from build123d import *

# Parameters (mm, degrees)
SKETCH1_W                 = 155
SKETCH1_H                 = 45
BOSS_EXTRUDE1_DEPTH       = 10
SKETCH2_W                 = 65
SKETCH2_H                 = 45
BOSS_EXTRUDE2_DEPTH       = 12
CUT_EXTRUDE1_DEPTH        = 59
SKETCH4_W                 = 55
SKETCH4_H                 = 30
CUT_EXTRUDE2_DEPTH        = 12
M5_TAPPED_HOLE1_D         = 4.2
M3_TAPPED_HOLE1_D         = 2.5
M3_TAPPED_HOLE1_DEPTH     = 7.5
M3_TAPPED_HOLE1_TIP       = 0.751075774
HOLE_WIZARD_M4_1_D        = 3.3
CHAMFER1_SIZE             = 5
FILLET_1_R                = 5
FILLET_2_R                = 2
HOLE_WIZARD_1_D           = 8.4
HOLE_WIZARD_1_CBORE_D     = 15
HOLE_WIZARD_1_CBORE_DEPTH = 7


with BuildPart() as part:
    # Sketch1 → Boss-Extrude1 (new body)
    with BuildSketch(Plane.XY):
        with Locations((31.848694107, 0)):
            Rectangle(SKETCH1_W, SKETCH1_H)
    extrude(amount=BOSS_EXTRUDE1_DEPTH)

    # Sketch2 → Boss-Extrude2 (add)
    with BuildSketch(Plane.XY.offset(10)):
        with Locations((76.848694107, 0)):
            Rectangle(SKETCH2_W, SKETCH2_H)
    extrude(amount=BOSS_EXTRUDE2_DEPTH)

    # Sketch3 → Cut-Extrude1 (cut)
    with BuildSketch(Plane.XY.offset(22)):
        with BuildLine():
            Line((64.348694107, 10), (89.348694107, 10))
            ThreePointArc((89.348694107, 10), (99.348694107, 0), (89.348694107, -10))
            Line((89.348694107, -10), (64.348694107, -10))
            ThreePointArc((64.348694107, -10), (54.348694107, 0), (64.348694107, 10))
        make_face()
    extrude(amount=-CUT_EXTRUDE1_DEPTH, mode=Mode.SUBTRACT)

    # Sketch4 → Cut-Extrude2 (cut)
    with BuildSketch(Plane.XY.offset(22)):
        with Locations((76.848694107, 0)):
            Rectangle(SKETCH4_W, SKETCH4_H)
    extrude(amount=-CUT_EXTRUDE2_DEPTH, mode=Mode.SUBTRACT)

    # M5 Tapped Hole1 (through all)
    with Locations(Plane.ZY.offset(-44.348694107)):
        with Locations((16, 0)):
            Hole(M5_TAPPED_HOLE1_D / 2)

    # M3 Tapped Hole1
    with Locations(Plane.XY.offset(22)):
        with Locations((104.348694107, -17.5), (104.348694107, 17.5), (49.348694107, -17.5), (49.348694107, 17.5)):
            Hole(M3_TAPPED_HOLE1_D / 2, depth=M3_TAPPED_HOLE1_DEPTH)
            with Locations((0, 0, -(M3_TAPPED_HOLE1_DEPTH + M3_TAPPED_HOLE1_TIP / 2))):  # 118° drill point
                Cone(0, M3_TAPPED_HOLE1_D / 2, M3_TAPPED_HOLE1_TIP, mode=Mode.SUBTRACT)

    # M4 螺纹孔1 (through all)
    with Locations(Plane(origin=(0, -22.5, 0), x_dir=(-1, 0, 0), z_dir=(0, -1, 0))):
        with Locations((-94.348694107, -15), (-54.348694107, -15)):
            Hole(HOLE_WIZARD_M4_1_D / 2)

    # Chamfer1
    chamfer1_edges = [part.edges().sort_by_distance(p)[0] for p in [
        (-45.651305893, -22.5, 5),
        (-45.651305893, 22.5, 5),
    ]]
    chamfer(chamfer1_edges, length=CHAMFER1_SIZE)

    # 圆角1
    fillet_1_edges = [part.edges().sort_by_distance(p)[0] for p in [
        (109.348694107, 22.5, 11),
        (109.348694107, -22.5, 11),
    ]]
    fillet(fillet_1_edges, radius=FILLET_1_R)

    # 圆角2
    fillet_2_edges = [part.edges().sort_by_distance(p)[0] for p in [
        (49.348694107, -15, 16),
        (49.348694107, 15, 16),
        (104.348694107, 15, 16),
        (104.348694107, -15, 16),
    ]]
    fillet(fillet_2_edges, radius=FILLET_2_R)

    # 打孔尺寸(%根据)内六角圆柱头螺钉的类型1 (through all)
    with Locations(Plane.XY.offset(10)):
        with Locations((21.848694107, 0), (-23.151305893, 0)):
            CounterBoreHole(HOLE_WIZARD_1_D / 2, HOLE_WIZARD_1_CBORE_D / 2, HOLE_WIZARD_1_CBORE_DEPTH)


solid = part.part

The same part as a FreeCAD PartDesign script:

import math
import FreeCAD as App
import Part
import Sketcher
from FreeCAD import Vector


def edges_at(feature, points):
    """Names of the edges that pass closest to the given points."""
    edges = feature.Shape.Edges
    near = lambda p: min(range(len(edges)), key=lambda i: edges[i].distToShape(Part.Vertex(*p))[0])
    return sorted({f"Edge{near(p) + 1}" for p in points})

doc = App.newDocument("Part")
body = doc.addObject("PartDesign::Body", "Body")

sketch1 = body.newObject("Sketcher::SketchObject", "Sketch")
sketch1.AttachmentSupport = (doc.getObject("XY_Plane"), [""])
sketch1.MapMode = "FlatFace"
sketch1.addGeometry(Part.LineSegment(Vector(-45.651306, 22.5, 0), Vector(-45.651306, -22.5, 0)), False)
sketch1.addGeometry(Part.LineSegment(Vector(-45.651306, -22.5, 0), Vector(109.348694, -22.5, 0)), False)
sketch1.addGeometry(Part.LineSegment(Vector(109.348694, -22.5, 0), Vector(109.348694, 22.5, 0)), False)
sketch1.addGeometry(Part.LineSegment(Vector(109.348694, 22.5, 0), Vector(-45.651306, 22.5, 0)), False)
sketch1.addConstraint(Sketcher.Constraint("Coincident", 0, 2, 1, 1))
sketch1.addConstraint(Sketcher.Constraint("Coincident", 1, 2, 2, 1))
sketch1.addConstraint(Sketcher.Constraint("Coincident", 2, 2, 3, 1))
sketch1.addConstraint(Sketcher.Constraint("Coincident", 3, 2, 0, 1))
sketch1.addConstraint(Sketcher.Constraint("Vertical", 0))
sketch1.addConstraint(Sketcher.Constraint("Horizontal", 1))
sketch1.addConstraint(Sketcher.Constraint("Vertical", 2))
sketch1.addConstraint(Sketcher.Constraint("Horizontal", 3))
sketch1.addConstraint(Sketcher.Constraint("DistanceX", 1, 1, 1, 2, 155.0))
sketch1.addConstraint(Sketcher.Constraint("DistanceY", 0, 2, 0, 1, 45.0))
sketch1.addConstraint(Sketcher.Constraint("DistanceY", 0, 2, -1, 1, 22.5))
sketch1.addConstraint(Sketcher.Constraint("DistanceX", 0, 2, -1, 1, 45.651306))
pad1 = body.newObject("PartDesign::Pad", "Pad")
pad1.Profile = sketch1
pad1.Length = 10

sketch2 = body.newObject("Sketcher::SketchObject", "Sketch001")
sketch2.AttachmentSupport = (doc.getObject("XY_Plane"), [""])
sketch2.MapMode = "FlatFace"
sketch2.AttachmentOffset = App.Placement(Vector(0, 0, 10), App.Rotation())
sketch2.addGeometry(Part.LineSegment(Vector(44.348694, 22.5, 0), Vector(44.348694, -22.5, 0)), False)
sketch2.addGeometry(Part.LineSegment(Vector(44.348694, -22.5, 0), Vector(109.348694, -22.5, 0)), False)
sketch2.addGeometry(Part.LineSegment(Vector(109.348694, -22.5, 0), Vector(109.348694, 22.5, 0)), False)
sketch2.addGeometry(Part.LineSegment(Vector(109.348694, 22.5, 0), Vector(44.348694, 22.5, 0)), False)
sketch2.addConstraint(Sketcher.Constraint("Coincident", 0, 2, 1, 1))
sketch2.addConstraint(Sketcher.Constraint("Coincident", 1, 2, 2, 1))
sketch2.addConstraint(Sketcher.Constraint("Coincident", 2, 2, 3, 1))
sketch2.addConstraint(Sketcher.Constraint("Coincident", 3, 2, 0, 1))
sketch2.addConstraint(Sketcher.Constraint("Vertical", 0))
sketch2.addConstraint(Sketcher.Constraint("Horizontal", 1))
sketch2.addConstraint(Sketcher.Constraint("Vertical", 2))
sketch2.addConstraint(Sketcher.Constraint("Horizontal", 3))
sketch2.addConstraint(Sketcher.Constraint("DistanceX", 1, 1, 1, 2, 65.0))
sketch2.addConstraint(Sketcher.Constraint("DistanceY", 0, 2, 0, 1, 45.0))
sketch2.addConstraint(Sketcher.Constraint("DistanceY", 0, 2, -1, 1, 22.5))
sketch2.addConstraint(Sketcher.Constraint("DistanceX", -1, 1, 0, 2, 44.348694))
pad2 = body.newObject("PartDesign::Pad", "Pad001")
pad2.Profile = sketch2
pad2.Length = 12

sketch3 = body.newObject("Sketcher::SketchObject", "Sketch002")
sketch3.AttachmentSupport = (doc.getObject("XY_Plane"), [""])
sketch3.MapMode = "FlatFace"
sketch3.AttachmentOffset = App.Placement(Vector(0, 0, 22), App.Rotation())
sketch3.addGeometry(Part.LineSegment(Vector(89.348694, 10, 0), Vector(64.348694, 10, 0)), False)
sketch3.addGeometry(Part.ArcOfCircle(Part.Circle(Vector(64.348694, 0, 0), Vector(0, 0, 1), 10), math.radians(90), math.radians(270)), False)
sketch3.addGeometry(Part.LineSegment(Vector(64.348694, -10, 0), Vector(89.348694, -10, 0)), False)
sketch3.addGeometry(Part.ArcOfCircle(Part.Circle(Vector(89.348694, 0, 0), Vector(0, 0, 1), 10), math.radians(-90), math.radians(90)), False)
sketch3.addConstraint(Sketcher.Constraint("Tangent", 0, 2, 1, 1))
sketch3.addConstraint(Sketcher.Constraint("Tangent", 1, 2, 2, 1))
sketch3.addConstraint(Sketcher.Constraint("Tangent", 2, 2, 3, 1))
sketch3.addConstraint(Sketcher.Constraint("Tangent", 3, 2, 0, 1))
sketch3.addConstraint(Sketcher.Constraint("Horizontal", 0))
sketch3.addConstraint(Sketcher.Constraint("Horizontal", 2))
sketch3.addConstraint(Sketcher.Constraint("PointOnObject", 1, 3, -1))
sketch3.addConstraint(Sketcher.Constraint("Radius", 1, 10.0))
sketch3.addConstraint(Sketcher.Constraint("DistanceX", 0, 2, 0, 1, 25.0))
sketch3.addConstraint(Sketcher.Constraint("DistanceX", -1, 1, 1, 3, 64.348694))
pocket1 = body.newObject("PartDesign::Pocket", "Pocket")
pocket1.Profile = sketch3
pocket1.Length = 59

sketch4 = body.newObject("Sketcher::SketchObject", "Sketch003")
sketch4.AttachmentSupport = (doc.getObject("XY_Plane"), [""])
sketch4.MapMode = "FlatFace"
sketch4.AttachmentOffset = App.Placement(Vector(0, 0, 22), App.Rotation())
sketch4.addGeometry(Part.LineSegment(Vector(49.348694, 15, 0), Vector(49.348694, -15, 0)), False)
sketch4.addGeometry(Part.LineSegment(Vector(49.348694, -15, 0), Vector(104.348694, -15, 0)), False)
sketch4.addGeometry(Part.LineSegment(Vector(104.348694, -15, 0), Vector(104.348694, 15, 0)), False)
sketch4.addGeometry(Part.LineSegment(Vector(104.348694, 15, 0), Vector(49.348694, 15, 0)), False)
sketch4.addConstraint(Sketcher.Constraint("Coincident", 0, 2, 1, 1))
sketch4.addConstraint(Sketcher.Constraint("Coincident", 1, 2, 2, 1))
sketch4.addConstraint(Sketcher.Constraint("Coincident", 2, 2, 3, 1))
sketch4.addConstraint(Sketcher.Constraint("Coincident", 3, 2, 0, 1))
sketch4.addConstraint(Sketcher.Constraint("Vertical", 0))
sketch4.addConstraint(Sketcher.Constraint("Horizontal", 1))
sketch4.addConstraint(Sketcher.Constraint("Vertical", 2))
sketch4.addConstraint(Sketcher.Constraint("Horizontal", 3))
sketch4.addConstraint(Sketcher.Constraint("DistanceX", 1, 1, 1, 2, 55.0))
sketch4.addConstraint(Sketcher.Constraint("DistanceY", 0, 2, 0, 1, 30.0))
sketch4.addConstraint(Sketcher.Constraint("DistanceY", 0, 2, -1, 1, 15.0))
sketch4.addConstraint(Sketcher.Constraint("DistanceX", -1, 1, 0, 2, 49.348694))
pocket2 = body.newObject("PartDesign::Pocket", "Pocket001")
pocket2.Profile = sketch4
pocket2.Length = 12

sketch5 = body.newObject("Sketcher::SketchObject", "Sketch004")
sketch5.AttachmentSupport = (doc.getObject("YZ_Plane"), [""])
sketch5.MapMode = "FlatFace"
sketch5.AttachmentOffset = App.Placement(Vector(0, 0, 44.348694), App.Rotation())
sketch5.addGeometry(Part.Circle(Vector(0, 16, 0), Vector(0, 0, 1), 2.1), False)
sketch5.addConstraint(Sketcher.Constraint("PointOnObject", 0, 3, -2))
sketch5.addConstraint(Sketcher.Constraint("Diameter", 0, 4.2))
sketch5.addConstraint(Sketcher.Constraint("DistanceY", -1, 1, 0, 3, 16.0))
doc.recompute()
hole = body.newObject("PartDesign::Hole", "Hole")
hole.Profile = sketch5
hole.ThreadType = "None"
hole.Diameter = 4.2
hole.DepthType = "ThroughAll"
hole.Reversed = True

sketch6 = body.newObject("Sketcher::SketchObject", "Sketch005")
sketch6.AttachmentSupport = (doc.getObject("XY_Plane"), [""])
sketch6.MapMode = "FlatFace"
sketch6.AttachmentOffset = App.Placement(Vector(0, 0, 22), App.Rotation())
sketch6.addGeometry(Part.Circle(Vector(104.348694, -17.5, 0), Vector(0, 0, 1), 1.25), False)
sketch6.addGeometry(Part.Circle(Vector(104.348694, 17.5, 0), Vector(0, 0, 1), 1.25), False)
sketch6.addGeometry(Part.Circle(Vector(49.348694, -17.5, 0), Vector(0, 0, 1), 1.25), False)
sketch6.addGeometry(Part.Circle(Vector(49.348694, 17.5, 0), Vector(0, 0, 1), 1.25), False)
sketch6.addConstraint(Sketcher.Constraint("Equal", 0, 1))
sketch6.addConstraint(Sketcher.Constraint("Equal", 1, 2))
sketch6.addConstraint(Sketcher.Constraint("Equal", 2, 3))
sketch6.addConstraint(Sketcher.Constraint("Symmetric", 0, 3, 1, 3, -1))
sketch6.addConstraint(Sketcher.Constraint("Symmetric", 2, 3, 3, 3, -1))
sketch6.addConstraint(Sketcher.Constraint("Horizontal", 0, 3, 2, 3))
sketch6.addConstraint(Sketcher.Constraint("Diameter", 0, 2.5))
sketch6.addConstraint(Sketcher.Constraint("DistanceY", 0, 3, 1, 3, 35.0))
sketch6.addConstraint(Sketcher.Constraint("DistanceX", 2, 3, 0, 3, 55.0))
sketch6.addConstraint(Sketcher.Constraint("DistanceX", -1, 1, 0, 3, 104.348694))
doc.recompute()
hole2 = body.newObject("PartDesign::Hole", "Hole001")
hole2.Profile = sketch6
hole2.ThreadType = "None"
hole2.Diameter = 2.5
hole2.DepthType = "Dimension"
hole2.Depth = 7.5
hole2.DrillPoint = "Angled"
hole2.DrillPointAngle = 118

sketch7 = body.newObject("Sketcher::SketchObject", "Sketch006")
sketch7.AttachmentSupport = (doc.getObject("XZ_Plane"), [""])
sketch7.MapMode = "FlatFace"
sketch7.AttachmentOffset = App.Placement(Vector(0, 0, 22.5), App.Rotation())
sketch7.addGeometry(Part.Circle(Vector(94.348694, 15, 0), Vector(0, 0, 1), 1.65), False)
sketch7.addGeometry(Part.Circle(Vector(54.348694, 15, 0), Vector(0, 0, 1), 1.65), False)
sketch7.addConstraint(Sketcher.Constraint("Equal", 0, 1))
sketch7.addConstraint(Sketcher.Constraint("Horizontal", 0, 3, 1, 3))
sketch7.addConstraint(Sketcher.Constraint("Diameter", 0, 3.3))
sketch7.addConstraint(Sketcher.Constraint("DistanceY", -1, 1, 0, 3, 15.0))
sketch7.addConstraint(Sketcher.Constraint("DistanceX", 1, 3, 0, 3, 40.0))
sketch7.addConstraint(Sketcher.Constraint("DistanceX", -1, 1, 0, 3, 94.348694))
doc.recompute()
hole3 = body.newObject("PartDesign::Hole", "Hole002")
hole3.Profile = sketch7
hole3.ThreadType = "None"
hole3.Diameter = 3.3
hole3.DepthType = "ThroughAll"
doc.recompute()

chamfer = body.newObject("PartDesign::Chamfer", "Chamfer")
chamfer.Base = (hole3, edges_at(hole3, [(-45.651, -22.5, 5), (-45.651, 22.5, 5)]))
chamfer.Size = 5
doc.recompute()

fillet = body.newObject("PartDesign::Fillet", "Fillet")
fillet.Base = (chamfer, edges_at(chamfer, [(109.349, 22.5, 11), (109.349, -22.5, 11)]))
fillet.Radius = 5
doc.recompute()

fillet2 = body.newObject("PartDesign::Fillet", "Fillet001")
fillet2.Base = (fillet, edges_at(fillet, [
    (49.349, -15, 16),
    (49.349, 15, 16),
    (104.349, 15, 16),
    (104.349, -15, 16),
]))
fillet2.Radius = 2

sketch8 = body.newObject("Sketcher::SketchObject", "Sketch007")
sketch8.AttachmentSupport = (doc.getObject("XY_Plane"), [""])
sketch8.MapMode = "FlatFace"
sketch8.AttachmentOffset = App.Placement(Vector(0, 0, 10), App.Rotation())
sketch8.addGeometry(Part.Circle(Vector(21.848694, 0, 0), Vector(0, 0, 1), 4.2), False)
sketch8.addGeometry(Part.Circle(Vector(-23.151306, 0, 0), Vector(0, 0, 1), 4.2), False)
sketch8.addConstraint(Sketcher.Constraint("Equal", 0, 1))
sketch8.addConstraint(Sketcher.Constraint("PointOnObject", 0, 3, -1))
sketch8.addConstraint(Sketcher.Constraint("PointOnObject", 1, 3, -1))
sketch8.addConstraint(Sketcher.Constraint("Diameter", 0, 8.4))
sketch8.addConstraint(Sketcher.Constraint("DistanceX", 1, 3, 0, 3, 45.0))
sketch8.addConstraint(Sketcher.Constraint("DistanceX", -1, 1, 0, 3, 21.848694))
doc.recompute()
hole4 = body.newObject("PartDesign::Hole", "Hole003")
hole4.Profile = sketch8
hole4.ThreadType = "None"
hole4.Diameter = 8.4
hole4.DepthType = "ThroughAll"
hole4.HoleCutType = "Counterbore"
hole4.HoleCutDiameter = 15
hole4.HoleCutDepth = 7

doc.recompute()
